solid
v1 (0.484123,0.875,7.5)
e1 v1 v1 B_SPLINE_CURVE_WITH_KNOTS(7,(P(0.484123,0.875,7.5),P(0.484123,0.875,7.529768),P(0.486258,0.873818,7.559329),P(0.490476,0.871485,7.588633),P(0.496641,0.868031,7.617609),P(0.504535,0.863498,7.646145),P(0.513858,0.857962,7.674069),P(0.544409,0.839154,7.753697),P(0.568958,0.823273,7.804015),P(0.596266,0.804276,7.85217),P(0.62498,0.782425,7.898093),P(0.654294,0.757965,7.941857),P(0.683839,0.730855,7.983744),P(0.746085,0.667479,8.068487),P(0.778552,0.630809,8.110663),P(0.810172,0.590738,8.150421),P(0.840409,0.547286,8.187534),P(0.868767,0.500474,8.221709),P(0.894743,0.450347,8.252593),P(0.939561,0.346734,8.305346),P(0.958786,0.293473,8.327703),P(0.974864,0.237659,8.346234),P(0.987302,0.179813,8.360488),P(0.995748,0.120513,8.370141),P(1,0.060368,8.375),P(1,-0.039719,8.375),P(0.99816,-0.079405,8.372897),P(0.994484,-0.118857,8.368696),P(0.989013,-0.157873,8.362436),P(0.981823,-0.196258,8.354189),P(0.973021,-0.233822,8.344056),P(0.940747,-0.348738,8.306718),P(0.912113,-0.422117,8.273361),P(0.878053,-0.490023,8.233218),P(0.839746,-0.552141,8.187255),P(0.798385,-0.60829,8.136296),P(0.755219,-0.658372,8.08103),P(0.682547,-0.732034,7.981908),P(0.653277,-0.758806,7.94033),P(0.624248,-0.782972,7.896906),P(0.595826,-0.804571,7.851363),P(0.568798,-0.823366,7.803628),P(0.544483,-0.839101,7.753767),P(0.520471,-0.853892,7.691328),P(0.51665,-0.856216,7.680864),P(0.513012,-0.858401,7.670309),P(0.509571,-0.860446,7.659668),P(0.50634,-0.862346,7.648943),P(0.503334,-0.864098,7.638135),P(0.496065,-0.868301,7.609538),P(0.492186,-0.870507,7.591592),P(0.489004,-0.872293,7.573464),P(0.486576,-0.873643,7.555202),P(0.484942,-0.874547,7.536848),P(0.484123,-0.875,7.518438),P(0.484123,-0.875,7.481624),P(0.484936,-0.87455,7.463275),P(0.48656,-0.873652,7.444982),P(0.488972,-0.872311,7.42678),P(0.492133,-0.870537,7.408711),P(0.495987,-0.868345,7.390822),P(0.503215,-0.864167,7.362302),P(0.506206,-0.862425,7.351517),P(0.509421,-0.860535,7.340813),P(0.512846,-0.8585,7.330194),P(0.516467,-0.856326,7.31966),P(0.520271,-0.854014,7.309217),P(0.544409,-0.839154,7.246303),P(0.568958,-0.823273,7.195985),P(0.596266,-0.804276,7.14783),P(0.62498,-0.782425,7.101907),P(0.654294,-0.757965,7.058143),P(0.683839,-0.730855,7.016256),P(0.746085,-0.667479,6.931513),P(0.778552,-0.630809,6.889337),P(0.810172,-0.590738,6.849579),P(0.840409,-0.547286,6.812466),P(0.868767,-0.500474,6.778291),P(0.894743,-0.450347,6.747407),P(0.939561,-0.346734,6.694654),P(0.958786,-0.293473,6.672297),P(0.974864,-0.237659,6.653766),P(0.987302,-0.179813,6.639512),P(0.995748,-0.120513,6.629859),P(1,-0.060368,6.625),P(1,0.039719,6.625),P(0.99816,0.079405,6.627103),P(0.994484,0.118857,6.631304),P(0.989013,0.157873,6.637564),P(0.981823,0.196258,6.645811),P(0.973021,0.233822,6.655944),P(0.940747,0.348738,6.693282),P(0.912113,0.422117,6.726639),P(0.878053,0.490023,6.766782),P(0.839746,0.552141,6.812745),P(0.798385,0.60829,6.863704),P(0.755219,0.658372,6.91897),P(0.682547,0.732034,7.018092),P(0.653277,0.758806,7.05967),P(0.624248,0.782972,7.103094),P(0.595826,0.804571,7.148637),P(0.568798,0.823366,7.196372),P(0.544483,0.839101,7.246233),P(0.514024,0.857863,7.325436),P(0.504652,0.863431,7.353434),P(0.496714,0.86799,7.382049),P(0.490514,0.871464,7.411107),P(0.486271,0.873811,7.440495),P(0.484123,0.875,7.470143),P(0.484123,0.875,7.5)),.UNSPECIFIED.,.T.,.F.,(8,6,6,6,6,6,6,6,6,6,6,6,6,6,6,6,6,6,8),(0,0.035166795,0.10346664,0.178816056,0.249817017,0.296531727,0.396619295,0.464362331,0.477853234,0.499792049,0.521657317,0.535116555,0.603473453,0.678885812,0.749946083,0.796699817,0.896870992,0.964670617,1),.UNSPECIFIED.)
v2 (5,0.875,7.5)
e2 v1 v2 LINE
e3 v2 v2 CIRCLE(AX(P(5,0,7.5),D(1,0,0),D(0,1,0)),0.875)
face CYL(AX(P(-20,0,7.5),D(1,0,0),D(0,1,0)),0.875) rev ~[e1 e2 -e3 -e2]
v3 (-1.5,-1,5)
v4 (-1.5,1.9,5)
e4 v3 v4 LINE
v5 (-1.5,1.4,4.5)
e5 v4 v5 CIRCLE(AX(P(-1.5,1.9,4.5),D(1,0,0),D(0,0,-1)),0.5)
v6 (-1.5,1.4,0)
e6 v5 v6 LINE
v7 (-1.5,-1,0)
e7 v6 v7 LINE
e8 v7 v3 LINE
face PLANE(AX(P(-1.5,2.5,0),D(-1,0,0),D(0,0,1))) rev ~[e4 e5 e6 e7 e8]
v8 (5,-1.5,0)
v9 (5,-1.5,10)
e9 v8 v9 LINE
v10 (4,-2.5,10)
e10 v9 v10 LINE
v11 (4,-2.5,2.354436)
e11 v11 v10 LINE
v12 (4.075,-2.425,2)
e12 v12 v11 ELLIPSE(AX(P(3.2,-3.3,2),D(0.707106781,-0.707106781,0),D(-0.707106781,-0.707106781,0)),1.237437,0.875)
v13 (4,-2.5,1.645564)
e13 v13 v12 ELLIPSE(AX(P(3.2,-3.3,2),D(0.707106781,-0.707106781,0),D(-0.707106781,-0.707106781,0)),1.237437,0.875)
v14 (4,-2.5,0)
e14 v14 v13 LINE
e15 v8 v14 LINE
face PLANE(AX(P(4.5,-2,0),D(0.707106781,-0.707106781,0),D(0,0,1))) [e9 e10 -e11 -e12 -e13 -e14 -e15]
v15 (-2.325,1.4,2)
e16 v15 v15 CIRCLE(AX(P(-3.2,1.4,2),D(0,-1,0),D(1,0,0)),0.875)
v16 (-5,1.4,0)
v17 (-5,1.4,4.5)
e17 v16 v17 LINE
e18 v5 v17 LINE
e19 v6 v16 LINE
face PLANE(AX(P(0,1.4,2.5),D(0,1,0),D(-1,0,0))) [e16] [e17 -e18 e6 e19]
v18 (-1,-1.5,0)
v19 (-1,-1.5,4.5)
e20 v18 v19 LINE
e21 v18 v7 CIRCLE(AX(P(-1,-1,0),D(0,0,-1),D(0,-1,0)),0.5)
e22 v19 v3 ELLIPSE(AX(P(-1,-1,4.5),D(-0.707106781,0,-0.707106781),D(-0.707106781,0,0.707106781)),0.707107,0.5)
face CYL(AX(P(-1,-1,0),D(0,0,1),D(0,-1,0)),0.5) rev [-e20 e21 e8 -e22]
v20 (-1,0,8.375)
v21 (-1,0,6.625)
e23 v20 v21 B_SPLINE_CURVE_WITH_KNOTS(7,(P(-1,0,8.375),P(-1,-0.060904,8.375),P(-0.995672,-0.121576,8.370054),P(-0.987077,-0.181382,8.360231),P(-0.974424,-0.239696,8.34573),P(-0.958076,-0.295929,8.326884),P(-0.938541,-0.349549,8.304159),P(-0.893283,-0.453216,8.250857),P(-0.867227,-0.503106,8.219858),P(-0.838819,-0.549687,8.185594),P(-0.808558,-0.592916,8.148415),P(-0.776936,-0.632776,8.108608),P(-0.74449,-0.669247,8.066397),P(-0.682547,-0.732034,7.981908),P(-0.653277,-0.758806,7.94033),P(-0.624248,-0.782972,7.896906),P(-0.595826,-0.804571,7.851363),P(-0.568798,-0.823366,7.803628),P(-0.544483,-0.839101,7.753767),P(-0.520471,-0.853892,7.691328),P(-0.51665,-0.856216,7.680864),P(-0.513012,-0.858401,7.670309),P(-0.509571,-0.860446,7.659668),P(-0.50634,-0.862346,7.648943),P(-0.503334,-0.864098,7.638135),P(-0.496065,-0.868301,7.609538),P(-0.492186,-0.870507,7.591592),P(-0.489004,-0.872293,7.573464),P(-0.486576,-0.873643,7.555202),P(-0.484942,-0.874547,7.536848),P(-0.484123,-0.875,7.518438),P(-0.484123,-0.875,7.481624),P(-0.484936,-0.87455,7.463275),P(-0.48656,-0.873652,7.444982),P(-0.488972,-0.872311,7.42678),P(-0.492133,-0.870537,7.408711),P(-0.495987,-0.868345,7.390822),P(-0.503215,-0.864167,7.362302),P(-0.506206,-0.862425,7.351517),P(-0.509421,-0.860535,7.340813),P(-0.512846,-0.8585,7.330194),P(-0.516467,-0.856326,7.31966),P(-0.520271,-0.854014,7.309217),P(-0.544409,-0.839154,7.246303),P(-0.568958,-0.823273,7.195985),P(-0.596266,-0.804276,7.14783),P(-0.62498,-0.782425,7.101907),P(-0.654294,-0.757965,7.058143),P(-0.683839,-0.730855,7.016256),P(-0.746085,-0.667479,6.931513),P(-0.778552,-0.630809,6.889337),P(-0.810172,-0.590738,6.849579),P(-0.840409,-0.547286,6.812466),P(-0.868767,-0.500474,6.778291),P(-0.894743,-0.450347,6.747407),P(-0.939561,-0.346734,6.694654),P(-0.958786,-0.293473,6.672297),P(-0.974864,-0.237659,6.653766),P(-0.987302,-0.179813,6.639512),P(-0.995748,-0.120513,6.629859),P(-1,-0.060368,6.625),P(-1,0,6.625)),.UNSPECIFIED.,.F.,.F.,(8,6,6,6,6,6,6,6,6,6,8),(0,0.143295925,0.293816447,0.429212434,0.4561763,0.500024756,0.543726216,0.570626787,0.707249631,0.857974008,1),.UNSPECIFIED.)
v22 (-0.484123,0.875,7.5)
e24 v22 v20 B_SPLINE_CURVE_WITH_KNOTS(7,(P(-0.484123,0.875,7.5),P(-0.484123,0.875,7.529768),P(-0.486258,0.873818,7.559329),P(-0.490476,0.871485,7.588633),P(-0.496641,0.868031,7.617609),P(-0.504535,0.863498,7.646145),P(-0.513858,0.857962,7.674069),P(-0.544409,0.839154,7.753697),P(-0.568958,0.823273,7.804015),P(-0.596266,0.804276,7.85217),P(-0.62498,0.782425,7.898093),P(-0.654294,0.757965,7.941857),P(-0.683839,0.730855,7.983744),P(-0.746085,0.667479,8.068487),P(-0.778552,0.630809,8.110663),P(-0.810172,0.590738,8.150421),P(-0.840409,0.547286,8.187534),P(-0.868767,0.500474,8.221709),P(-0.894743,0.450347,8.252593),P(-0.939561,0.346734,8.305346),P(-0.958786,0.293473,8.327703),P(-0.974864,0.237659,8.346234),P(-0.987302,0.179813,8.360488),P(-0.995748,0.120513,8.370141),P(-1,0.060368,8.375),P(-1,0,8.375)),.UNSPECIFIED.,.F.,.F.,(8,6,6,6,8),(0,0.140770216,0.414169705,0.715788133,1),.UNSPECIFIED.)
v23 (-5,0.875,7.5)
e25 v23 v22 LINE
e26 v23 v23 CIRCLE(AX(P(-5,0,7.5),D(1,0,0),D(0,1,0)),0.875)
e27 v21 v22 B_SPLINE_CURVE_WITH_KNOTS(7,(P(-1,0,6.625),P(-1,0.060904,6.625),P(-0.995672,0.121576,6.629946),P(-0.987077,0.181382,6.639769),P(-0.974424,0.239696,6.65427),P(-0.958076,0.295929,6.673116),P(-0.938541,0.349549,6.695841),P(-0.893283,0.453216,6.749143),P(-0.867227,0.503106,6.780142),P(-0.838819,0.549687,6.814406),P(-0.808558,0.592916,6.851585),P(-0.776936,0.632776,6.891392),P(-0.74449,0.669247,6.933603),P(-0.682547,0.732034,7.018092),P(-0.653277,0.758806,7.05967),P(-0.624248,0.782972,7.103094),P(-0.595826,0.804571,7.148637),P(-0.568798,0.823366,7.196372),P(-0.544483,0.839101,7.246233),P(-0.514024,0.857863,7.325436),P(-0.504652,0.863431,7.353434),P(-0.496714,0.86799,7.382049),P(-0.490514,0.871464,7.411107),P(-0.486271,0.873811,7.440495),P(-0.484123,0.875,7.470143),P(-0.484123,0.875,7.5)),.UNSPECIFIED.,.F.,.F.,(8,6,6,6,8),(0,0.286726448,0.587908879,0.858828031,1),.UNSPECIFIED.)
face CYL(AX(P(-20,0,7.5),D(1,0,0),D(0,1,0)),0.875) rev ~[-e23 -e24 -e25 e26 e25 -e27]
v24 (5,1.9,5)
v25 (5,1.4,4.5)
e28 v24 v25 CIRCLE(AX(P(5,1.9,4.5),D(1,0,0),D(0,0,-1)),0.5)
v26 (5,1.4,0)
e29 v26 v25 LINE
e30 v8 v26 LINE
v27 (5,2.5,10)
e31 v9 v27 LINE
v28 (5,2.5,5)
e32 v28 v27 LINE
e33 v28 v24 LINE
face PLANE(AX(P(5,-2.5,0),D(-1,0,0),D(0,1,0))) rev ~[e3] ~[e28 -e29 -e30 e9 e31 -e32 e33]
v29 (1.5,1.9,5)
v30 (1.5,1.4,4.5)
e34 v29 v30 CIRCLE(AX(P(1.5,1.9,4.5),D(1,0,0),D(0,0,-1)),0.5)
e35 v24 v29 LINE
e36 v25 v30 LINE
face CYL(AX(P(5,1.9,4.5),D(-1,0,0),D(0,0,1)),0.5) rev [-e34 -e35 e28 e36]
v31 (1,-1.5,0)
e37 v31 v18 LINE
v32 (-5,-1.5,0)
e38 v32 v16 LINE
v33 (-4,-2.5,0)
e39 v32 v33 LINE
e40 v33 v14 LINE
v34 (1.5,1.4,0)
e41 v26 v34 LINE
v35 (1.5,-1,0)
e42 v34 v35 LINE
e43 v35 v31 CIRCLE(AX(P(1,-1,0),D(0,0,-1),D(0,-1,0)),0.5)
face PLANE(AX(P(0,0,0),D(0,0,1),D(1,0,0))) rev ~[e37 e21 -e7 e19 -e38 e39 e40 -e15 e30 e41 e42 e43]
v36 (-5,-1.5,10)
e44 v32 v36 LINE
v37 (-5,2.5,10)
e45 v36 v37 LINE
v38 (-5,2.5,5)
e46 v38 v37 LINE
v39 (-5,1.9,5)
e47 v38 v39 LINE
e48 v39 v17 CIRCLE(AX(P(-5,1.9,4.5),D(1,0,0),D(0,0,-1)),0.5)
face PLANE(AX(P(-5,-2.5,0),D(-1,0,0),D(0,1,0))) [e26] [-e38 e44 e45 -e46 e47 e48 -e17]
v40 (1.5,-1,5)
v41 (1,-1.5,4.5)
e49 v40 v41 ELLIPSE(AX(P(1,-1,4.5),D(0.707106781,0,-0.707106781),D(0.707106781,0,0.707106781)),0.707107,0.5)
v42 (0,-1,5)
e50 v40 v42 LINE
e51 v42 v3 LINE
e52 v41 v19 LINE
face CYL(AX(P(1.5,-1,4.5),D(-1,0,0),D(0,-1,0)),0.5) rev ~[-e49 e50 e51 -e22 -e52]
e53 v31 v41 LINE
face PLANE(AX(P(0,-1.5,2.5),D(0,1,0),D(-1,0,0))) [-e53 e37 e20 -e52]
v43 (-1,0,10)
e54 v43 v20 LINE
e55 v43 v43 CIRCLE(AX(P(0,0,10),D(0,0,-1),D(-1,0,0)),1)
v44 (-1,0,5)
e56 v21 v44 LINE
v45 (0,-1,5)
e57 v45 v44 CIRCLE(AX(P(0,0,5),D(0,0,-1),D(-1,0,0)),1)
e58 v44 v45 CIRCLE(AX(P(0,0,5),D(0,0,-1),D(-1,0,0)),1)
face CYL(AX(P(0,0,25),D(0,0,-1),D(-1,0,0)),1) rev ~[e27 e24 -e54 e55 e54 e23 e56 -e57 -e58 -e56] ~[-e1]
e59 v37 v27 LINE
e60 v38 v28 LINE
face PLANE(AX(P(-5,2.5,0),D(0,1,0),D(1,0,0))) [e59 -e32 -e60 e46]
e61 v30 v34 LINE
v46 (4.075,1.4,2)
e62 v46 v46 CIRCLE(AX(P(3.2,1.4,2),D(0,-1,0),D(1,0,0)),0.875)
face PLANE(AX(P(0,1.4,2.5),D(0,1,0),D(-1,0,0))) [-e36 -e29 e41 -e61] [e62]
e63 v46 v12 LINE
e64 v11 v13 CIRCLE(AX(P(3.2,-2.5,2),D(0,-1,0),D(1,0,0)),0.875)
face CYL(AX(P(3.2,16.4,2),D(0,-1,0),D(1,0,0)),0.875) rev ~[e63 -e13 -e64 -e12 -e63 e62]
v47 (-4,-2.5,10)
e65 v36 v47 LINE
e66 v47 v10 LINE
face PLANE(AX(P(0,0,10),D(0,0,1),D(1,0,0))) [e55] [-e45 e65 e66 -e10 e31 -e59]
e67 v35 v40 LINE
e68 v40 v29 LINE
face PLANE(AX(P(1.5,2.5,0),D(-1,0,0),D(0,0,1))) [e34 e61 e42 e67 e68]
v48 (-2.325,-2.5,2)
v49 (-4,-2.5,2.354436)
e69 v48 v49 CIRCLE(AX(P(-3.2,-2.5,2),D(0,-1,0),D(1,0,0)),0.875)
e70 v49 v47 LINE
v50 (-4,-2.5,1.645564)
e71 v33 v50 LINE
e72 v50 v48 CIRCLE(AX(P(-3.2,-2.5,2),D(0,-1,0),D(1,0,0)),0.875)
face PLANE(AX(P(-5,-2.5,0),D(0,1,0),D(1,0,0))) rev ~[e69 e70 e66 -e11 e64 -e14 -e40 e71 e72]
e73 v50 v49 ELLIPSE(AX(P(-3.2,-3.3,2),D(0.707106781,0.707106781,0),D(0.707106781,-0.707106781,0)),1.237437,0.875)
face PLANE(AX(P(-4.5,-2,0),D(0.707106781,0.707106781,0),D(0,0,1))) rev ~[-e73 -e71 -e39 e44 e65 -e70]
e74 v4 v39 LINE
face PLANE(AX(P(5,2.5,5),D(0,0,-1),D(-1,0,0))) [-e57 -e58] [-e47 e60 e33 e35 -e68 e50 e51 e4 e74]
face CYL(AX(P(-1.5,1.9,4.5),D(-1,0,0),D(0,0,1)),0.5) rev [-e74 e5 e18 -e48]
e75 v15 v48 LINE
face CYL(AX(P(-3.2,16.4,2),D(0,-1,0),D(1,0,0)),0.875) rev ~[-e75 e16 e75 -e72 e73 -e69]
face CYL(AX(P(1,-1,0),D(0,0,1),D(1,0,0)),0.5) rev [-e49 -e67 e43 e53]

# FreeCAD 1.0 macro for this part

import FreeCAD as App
import Part
import Sketcher

V = App.Vector


def edges_at(feature, points):
    """Names of the edges that pass closest to the given points."""
    edges = feature.Shape.Edges
    near = lambda p: min(range(len(edges)), key=lambda i: edges[i].distToShape(Part.Vertex(*p))[0])
    return sorted({f"Edge{near(p) + 1}" for p in points})

doc = App.newDocument("Part")
params = doc.addObject("Spreadsheet::Sheet", "Params")
for row, (alias, value) in enumerate([
    ("sketch1_width", "10 mm"),
    ("sketch1_height", "5 mm"),
    ("pad1_length", "10 mm"),
    ("sketch2_width", "3 mm"),
    ("sketch2_height", "5 mm"),
    ("pocket1_length", "4 mm"),
    ("sketch3_width", "10 mm"),
    ("sketch3_height", "5 mm"),
    ("pocket2_length", "1.1 mm"),
    ("fillet_radius", "0.5 mm"),
    ("fillet2_radius", "0.5 mm"),
    ("chamfer_size", "1 mm"),
    ("sketch4_diameter", "1.75 mm"),
    ("hole_diameter", "1.75 mm"),
    ("sketch5_diameter", "1.75 mm"),
    ("hole2_diameter", "1.75 mm"),
    ("sketch6_diameter", "2 mm"),
    ("hole3_diameter", "2 mm"),
], start=1):
    params.set(f"A{row}", alias)
    params.set(f"B{row}", "=" + value)
    params.setAlias(f"B{row}", alias)

body = doc.addObject("PartDesign::Body", "Body")

# Sketch on XY plane
sketch1 = body.newObject("Sketcher::SketchObject", "Sketch")
sketch1.AttachmentSupport = (doc.getObject("XY_Plane"), [""])
sketch1.MapMode = "FlatFace"
sketch1.addGeometry(Part.LineSegment(V(-5, 2, 0), V(-5, -2, 0)), False)
sketch1.addGeometry(Part.LineSegment(V(-5, -2, 0), V(5, -2, 0)), False)
sketch1.addGeometry(Part.LineSegment(V(5, -2, 0), V(5, 2, 0)), False)
sketch1.addGeometry(Part.LineSegment(V(5, 2, 0), V(-5, 2, 0)), False)
sketch1.addConstraint(Sketcher.Constraint("Coincident", 0, 2, 1, 1))
sketch1.addConstraint(Sketcher.Constraint("Coincident", 1, 2, 2, 1))
sketch1.addConstraint(Sketcher.Constraint("Coincident", 2, 2, 3, 1))
sketch1.addConstraint(Sketcher.Constraint("Coincident", 3, 2, 0, 1))
sketch1.addConstraint(Sketcher.Constraint("Vertical", 0))
sketch1.addConstraint(Sketcher.Constraint("Horizontal", 1))
sketch1.addConstraint(Sketcher.Constraint("Vertical", 2))
sketch1.addConstraint(Sketcher.Constraint("Horizontal", 3))
sketch1.addConstraint(Sketcher.Constraint("Symmetric", 0, 2, 2, 2, -1, 1))
sketch1.addConstraint(Sketcher.Constraint("DistanceX", 1, 1, 1, 2, 10.0))
sketch1.addConstraint(Sketcher.Constraint("DistanceY", 0, 2, 0, 1, 5.0))
sketch1.setExpression("Constraints[9]", "Params.sketch1_width")
sketch1.setExpression("Constraints[10]", "Params.sketch1_height")
pad1 = body.newObject("PartDesign::Pad", "Pad")
pad1.Profile = sketch1
pad1.setExpression("Length", "Params.pad1_length")

# Sketch on XZ plane
sketch2 = body.newObject("Sketcher::SketchObject", "Sketch001")
sketch2.AttachmentSupport = (doc.getObject("XZ_Plane"), [""])
sketch2.MapMode = "FlatFace"
sketch2.AttachmentOffset = App.Placement(V(0, 0, -2.5), App.Rotation())
sketch2.addGeometry(Part.LineSegment(V(1.5, 5, 0), V(1.5, 0, 0)), False)
sketch2.addGeometry(Part.LineSegment(V(1.5, 0, 0), V(-1.5, 0, 0)), False)
sketch2.addGeometry(Part.LineSegment(V(-1.5, 0, 0), V(-1.5, 5, 0)), False)
sketch2.addGeometry(Part.LineSegment(V(-1.5, 5, 0), V(1.5, 5, 0)), False)
sketch2.addConstraint(Sketcher.Constraint("Coincident", 0, 2, 1, 1))
sketch2.addConstraint(Sketcher.Constraint("Coincident", 1, 2, 2, 1))
sketch2.addConstraint(Sketcher.Constraint("Coincident", 2, 2, 3, 1))
sketch2.addConstraint(Sketcher.Constraint("Coincident", 3, 2, 0, 1))
sketch2.addConstraint(Sketcher.Constraint("Vertical", 0))
sketch2.addConstraint(Sketcher.Constraint("Horizontal", 1))
sketch2.addConstraint(Sketcher.Constraint("Vertical", 2))
sketch2.addConstraint(Sketcher.Constraint("Horizontal", 3))
sketch2.addConstraint(Sketcher.Constraint("Symmetric", 0, 2, 1, 2, -1, 1))
sketch2.addConstraint(Sketcher.Constraint("DistanceX", 1, 2, 1, 1, 3.0))
sketch2.addConstraint(Sketcher.Constraint("DistanceY", 0, 2, 0, 1, 5.0))
sketch2.setExpression("Constraints[9]", "Params.sketch2_width")
sketch2.setExpression("Constraints[10]", "Params.sketch2_height")
pocket1 = body.newObject("PartDesign::Pocket", "Pocket")
pocket1.Profile = sketch2
pocket1.setExpression("Length", "Params.pocket1_length")
pocket1.Reversed = True

# Sketch on XZ plane
sketch3 = body.newObject("Sketcher::SketchObject", "Sketch002")
sketch3.AttachmentSupport = (doc.getObject("XZ_Plane"), [""])
sketch3.MapMode = "FlatFace"
sketch3.AttachmentOffset = App.Placement(V(0, 0, -2.5), App.Rotation())
sketch3.addGeometry(Part.LineSegment(V(5, 5, 0), V(5, 0, 0)), False)
sketch3.addGeometry(Part.LineSegment(V(5, 0, 0), V(-5, 0, 0)), False)
sketch3.addGeometry(Part.LineSegment(V(-5, 0, 0), V(-5, 5, 0)), False)
sketch3.addGeometry(Part.LineSegment(V(-5, 5, 0), V(5, 5, 0)), False)
sketch3.addConstraint(Sketcher.Constraint("Coincident", 0, 2, 1, 1))
sketch3.addConstraint(Sketcher.Constraint("Coincident", 1, 2, 2, 1))
sketch3.addConstraint(Sketcher.Constraint("Coincident", 2, 2, 3, 1))
sketch3.addConstraint(Sketcher.Constraint("Coincident", 3, 2, 0, 1))
sketch3.addConstraint(Sketcher.Constraint("Vertical", 0))
sketch3.addConstraint(Sketcher.Constraint("Horizontal", 1))
sketch3.addConstraint(Sketcher.Constraint("Vertical", 2))
sketch3.addConstraint(Sketcher.Constraint("Horizontal", 3))
sketch3.addConstraint(Sketcher.Constraint("Symmetric", 0, 2, 1, 2, -1, 1))
sketch3.addConstraint(Sketcher.Constraint("DistanceX", 1, 2, 1, 1, 10.0))
sketch3.addConstraint(Sketcher.Constraint("DistanceY", 0, 2, 0, 1, 5.0))
sketch3.setExpression("Constraints[9]", "Params.sketch3_width")
sketch3.setExpression("Constraints[10]", "Params.sketch3_height")
pocket2 = body.newObject("PartDesign::Pocket", "Pocket001")
pocket2.Profile = sketch3
pocket2.setExpression("Length", "Params.pocket2_length")
pocket2.Reversed = True
doc.recompute()

fillet = body.newObject("PartDesign::Fillet", "Fillet")
fillet.Base = (pocket2, edges_at(pocket2, [(1.5, -1.5, 2.5), (-1.5, -1.5, 2.5), (0, -1.5, 5)]))
fillet.setExpression("Radius", "Params.fillet_radius")
doc.recompute()

fillet2 = body.newObject("PartDesign::Fillet", "Fillet001")
fillet2.Base = (fillet, edges_at(fillet, [(-3.25, 1.4, 5), (3.25, 1.4, 5)]))
fillet2.setExpression("Radius", "Params.fillet2_radius")
doc.recompute()

chamfer = body.newObject("PartDesign::Chamfer", "Chamfer")
chamfer.Base = (fillet2, edges_at(fillet2, [(5, -2.5, 5), (-5, -2.5, 5)]))
chamfer.setExpression("Size", "Params.chamfer_size")

# Sketch on XZ plane
sketch4 = body.newObject("Sketcher::SketchObject", "Sketch003")
sketch4.AttachmentSupport = (doc.getObject("XZ_Plane"), [""])
sketch4.MapMode = "FlatFace"
sketch4.AttachmentOffset = App.Placement(V(0, 0, -1.4), App.Rotation())
sketch4.addGeometry(Part.Circle(V(3.2, 2, 0), V(0, 0, 1), 0.9), False)
sketch4.addGeometry(Part.Circle(V(-3.2, 2, 0), V(0, 0, 1), 0.9), False)
sketch4.addConstraint(Sketcher.Constraint("Equal", 0, 1))
sketch4.addConstraint(Sketcher.Constraint("Symmetric", 0, 3, 1, 3, -2))
sketch4.addConstraint(Sketcher.Constraint("Diameter", 0, 1.75))
sketch4.addConstraint(Sketcher.Constraint("DistanceY", -1, 1, 0, 3, 2.0))
sketch4.addConstraint(Sketcher.Constraint("DistanceX", -1, 1, 0, 3, 3.2))
sketch4.setExpression("Constraints[2]", "Params.sketch4_diameter")
doc.recompute()
hole = body.newObject("PartDesign::Hole", "Hole")
hole.Profile = sketch4
hole.ThreadType = "None"
hole.setExpression("Diameter", "Params.hole_diameter")
hole.DepthType = "ThroughAll"
hole.Reversed = True

# Sketch on YZ plane
sketch5 = body.newObject("Sketcher::SketchObject", "Sketch004")
sketch5.AttachmentSupport = (doc.getObject("YZ_Plane"), [""])
sketch5.MapMode = "FlatFace"
sketch5.AttachmentOffset = App.Placement(V(0, 0, -5), App.Rotation())
sketch5.addGeometry(Part.Circle(V(0, 7.5, 0), V(0, 0, 1), 0.9), False)
sketch5.addConstraint(Sketcher.Constraint("PointOnObject", 0, 3, -2))
sketch5.addConstraint(Sketcher.Constraint("Diameter", 0, 1.75))
sketch5.addConstraint(Sketcher.Constraint("DistanceY", -1, 1, 0, 3, 7.5))
sketch5.setExpression("Constraints[1]", "Params.sketch5_diameter")
doc.recompute()
hole2 = body.newObject("PartDesign::Hole", "Hole001")
hole2.Profile = sketch5
hole2.ThreadType = "None"
hole2.setExpression("Diameter", "Params.hole2_diameter")
hole2.DepthType = "ThroughAll"
hole2.Reversed = True

# Sketch on XY plane
sketch6 = body.newObject("Sketcher::SketchObject", "Sketch005")
sketch6.AttachmentSupport = (doc.getObject("XY_Plane"), [""])
sketch6.MapMode = "FlatFace"
sketch6.AttachmentOffset = App.Placement(V(0, 0, 10), App.Rotation())
sketch6.addGeometry(Part.Circle(V(0, 0, 0), V(0, 0, 1), 1), False)
sketch6.addConstraint(Sketcher.Constraint("Coincident", 0, 3, -1, 1))
sketch6.addConstraint(Sketcher.Constraint("Diameter", 0, 2.0))
sketch6.setExpression("Constraints[1]", "Params.sketch6_diameter")
doc.recompute()
hole3 = body.newObject("PartDesign::Hole", "Hole002")
hole3.Profile = sketch6
hole3.ThreadType = "None"
hole3.setExpression("Diameter", "Params.hole3_diameter")
hole3.DepthType = "ThroughAll"

doc.recompute()
